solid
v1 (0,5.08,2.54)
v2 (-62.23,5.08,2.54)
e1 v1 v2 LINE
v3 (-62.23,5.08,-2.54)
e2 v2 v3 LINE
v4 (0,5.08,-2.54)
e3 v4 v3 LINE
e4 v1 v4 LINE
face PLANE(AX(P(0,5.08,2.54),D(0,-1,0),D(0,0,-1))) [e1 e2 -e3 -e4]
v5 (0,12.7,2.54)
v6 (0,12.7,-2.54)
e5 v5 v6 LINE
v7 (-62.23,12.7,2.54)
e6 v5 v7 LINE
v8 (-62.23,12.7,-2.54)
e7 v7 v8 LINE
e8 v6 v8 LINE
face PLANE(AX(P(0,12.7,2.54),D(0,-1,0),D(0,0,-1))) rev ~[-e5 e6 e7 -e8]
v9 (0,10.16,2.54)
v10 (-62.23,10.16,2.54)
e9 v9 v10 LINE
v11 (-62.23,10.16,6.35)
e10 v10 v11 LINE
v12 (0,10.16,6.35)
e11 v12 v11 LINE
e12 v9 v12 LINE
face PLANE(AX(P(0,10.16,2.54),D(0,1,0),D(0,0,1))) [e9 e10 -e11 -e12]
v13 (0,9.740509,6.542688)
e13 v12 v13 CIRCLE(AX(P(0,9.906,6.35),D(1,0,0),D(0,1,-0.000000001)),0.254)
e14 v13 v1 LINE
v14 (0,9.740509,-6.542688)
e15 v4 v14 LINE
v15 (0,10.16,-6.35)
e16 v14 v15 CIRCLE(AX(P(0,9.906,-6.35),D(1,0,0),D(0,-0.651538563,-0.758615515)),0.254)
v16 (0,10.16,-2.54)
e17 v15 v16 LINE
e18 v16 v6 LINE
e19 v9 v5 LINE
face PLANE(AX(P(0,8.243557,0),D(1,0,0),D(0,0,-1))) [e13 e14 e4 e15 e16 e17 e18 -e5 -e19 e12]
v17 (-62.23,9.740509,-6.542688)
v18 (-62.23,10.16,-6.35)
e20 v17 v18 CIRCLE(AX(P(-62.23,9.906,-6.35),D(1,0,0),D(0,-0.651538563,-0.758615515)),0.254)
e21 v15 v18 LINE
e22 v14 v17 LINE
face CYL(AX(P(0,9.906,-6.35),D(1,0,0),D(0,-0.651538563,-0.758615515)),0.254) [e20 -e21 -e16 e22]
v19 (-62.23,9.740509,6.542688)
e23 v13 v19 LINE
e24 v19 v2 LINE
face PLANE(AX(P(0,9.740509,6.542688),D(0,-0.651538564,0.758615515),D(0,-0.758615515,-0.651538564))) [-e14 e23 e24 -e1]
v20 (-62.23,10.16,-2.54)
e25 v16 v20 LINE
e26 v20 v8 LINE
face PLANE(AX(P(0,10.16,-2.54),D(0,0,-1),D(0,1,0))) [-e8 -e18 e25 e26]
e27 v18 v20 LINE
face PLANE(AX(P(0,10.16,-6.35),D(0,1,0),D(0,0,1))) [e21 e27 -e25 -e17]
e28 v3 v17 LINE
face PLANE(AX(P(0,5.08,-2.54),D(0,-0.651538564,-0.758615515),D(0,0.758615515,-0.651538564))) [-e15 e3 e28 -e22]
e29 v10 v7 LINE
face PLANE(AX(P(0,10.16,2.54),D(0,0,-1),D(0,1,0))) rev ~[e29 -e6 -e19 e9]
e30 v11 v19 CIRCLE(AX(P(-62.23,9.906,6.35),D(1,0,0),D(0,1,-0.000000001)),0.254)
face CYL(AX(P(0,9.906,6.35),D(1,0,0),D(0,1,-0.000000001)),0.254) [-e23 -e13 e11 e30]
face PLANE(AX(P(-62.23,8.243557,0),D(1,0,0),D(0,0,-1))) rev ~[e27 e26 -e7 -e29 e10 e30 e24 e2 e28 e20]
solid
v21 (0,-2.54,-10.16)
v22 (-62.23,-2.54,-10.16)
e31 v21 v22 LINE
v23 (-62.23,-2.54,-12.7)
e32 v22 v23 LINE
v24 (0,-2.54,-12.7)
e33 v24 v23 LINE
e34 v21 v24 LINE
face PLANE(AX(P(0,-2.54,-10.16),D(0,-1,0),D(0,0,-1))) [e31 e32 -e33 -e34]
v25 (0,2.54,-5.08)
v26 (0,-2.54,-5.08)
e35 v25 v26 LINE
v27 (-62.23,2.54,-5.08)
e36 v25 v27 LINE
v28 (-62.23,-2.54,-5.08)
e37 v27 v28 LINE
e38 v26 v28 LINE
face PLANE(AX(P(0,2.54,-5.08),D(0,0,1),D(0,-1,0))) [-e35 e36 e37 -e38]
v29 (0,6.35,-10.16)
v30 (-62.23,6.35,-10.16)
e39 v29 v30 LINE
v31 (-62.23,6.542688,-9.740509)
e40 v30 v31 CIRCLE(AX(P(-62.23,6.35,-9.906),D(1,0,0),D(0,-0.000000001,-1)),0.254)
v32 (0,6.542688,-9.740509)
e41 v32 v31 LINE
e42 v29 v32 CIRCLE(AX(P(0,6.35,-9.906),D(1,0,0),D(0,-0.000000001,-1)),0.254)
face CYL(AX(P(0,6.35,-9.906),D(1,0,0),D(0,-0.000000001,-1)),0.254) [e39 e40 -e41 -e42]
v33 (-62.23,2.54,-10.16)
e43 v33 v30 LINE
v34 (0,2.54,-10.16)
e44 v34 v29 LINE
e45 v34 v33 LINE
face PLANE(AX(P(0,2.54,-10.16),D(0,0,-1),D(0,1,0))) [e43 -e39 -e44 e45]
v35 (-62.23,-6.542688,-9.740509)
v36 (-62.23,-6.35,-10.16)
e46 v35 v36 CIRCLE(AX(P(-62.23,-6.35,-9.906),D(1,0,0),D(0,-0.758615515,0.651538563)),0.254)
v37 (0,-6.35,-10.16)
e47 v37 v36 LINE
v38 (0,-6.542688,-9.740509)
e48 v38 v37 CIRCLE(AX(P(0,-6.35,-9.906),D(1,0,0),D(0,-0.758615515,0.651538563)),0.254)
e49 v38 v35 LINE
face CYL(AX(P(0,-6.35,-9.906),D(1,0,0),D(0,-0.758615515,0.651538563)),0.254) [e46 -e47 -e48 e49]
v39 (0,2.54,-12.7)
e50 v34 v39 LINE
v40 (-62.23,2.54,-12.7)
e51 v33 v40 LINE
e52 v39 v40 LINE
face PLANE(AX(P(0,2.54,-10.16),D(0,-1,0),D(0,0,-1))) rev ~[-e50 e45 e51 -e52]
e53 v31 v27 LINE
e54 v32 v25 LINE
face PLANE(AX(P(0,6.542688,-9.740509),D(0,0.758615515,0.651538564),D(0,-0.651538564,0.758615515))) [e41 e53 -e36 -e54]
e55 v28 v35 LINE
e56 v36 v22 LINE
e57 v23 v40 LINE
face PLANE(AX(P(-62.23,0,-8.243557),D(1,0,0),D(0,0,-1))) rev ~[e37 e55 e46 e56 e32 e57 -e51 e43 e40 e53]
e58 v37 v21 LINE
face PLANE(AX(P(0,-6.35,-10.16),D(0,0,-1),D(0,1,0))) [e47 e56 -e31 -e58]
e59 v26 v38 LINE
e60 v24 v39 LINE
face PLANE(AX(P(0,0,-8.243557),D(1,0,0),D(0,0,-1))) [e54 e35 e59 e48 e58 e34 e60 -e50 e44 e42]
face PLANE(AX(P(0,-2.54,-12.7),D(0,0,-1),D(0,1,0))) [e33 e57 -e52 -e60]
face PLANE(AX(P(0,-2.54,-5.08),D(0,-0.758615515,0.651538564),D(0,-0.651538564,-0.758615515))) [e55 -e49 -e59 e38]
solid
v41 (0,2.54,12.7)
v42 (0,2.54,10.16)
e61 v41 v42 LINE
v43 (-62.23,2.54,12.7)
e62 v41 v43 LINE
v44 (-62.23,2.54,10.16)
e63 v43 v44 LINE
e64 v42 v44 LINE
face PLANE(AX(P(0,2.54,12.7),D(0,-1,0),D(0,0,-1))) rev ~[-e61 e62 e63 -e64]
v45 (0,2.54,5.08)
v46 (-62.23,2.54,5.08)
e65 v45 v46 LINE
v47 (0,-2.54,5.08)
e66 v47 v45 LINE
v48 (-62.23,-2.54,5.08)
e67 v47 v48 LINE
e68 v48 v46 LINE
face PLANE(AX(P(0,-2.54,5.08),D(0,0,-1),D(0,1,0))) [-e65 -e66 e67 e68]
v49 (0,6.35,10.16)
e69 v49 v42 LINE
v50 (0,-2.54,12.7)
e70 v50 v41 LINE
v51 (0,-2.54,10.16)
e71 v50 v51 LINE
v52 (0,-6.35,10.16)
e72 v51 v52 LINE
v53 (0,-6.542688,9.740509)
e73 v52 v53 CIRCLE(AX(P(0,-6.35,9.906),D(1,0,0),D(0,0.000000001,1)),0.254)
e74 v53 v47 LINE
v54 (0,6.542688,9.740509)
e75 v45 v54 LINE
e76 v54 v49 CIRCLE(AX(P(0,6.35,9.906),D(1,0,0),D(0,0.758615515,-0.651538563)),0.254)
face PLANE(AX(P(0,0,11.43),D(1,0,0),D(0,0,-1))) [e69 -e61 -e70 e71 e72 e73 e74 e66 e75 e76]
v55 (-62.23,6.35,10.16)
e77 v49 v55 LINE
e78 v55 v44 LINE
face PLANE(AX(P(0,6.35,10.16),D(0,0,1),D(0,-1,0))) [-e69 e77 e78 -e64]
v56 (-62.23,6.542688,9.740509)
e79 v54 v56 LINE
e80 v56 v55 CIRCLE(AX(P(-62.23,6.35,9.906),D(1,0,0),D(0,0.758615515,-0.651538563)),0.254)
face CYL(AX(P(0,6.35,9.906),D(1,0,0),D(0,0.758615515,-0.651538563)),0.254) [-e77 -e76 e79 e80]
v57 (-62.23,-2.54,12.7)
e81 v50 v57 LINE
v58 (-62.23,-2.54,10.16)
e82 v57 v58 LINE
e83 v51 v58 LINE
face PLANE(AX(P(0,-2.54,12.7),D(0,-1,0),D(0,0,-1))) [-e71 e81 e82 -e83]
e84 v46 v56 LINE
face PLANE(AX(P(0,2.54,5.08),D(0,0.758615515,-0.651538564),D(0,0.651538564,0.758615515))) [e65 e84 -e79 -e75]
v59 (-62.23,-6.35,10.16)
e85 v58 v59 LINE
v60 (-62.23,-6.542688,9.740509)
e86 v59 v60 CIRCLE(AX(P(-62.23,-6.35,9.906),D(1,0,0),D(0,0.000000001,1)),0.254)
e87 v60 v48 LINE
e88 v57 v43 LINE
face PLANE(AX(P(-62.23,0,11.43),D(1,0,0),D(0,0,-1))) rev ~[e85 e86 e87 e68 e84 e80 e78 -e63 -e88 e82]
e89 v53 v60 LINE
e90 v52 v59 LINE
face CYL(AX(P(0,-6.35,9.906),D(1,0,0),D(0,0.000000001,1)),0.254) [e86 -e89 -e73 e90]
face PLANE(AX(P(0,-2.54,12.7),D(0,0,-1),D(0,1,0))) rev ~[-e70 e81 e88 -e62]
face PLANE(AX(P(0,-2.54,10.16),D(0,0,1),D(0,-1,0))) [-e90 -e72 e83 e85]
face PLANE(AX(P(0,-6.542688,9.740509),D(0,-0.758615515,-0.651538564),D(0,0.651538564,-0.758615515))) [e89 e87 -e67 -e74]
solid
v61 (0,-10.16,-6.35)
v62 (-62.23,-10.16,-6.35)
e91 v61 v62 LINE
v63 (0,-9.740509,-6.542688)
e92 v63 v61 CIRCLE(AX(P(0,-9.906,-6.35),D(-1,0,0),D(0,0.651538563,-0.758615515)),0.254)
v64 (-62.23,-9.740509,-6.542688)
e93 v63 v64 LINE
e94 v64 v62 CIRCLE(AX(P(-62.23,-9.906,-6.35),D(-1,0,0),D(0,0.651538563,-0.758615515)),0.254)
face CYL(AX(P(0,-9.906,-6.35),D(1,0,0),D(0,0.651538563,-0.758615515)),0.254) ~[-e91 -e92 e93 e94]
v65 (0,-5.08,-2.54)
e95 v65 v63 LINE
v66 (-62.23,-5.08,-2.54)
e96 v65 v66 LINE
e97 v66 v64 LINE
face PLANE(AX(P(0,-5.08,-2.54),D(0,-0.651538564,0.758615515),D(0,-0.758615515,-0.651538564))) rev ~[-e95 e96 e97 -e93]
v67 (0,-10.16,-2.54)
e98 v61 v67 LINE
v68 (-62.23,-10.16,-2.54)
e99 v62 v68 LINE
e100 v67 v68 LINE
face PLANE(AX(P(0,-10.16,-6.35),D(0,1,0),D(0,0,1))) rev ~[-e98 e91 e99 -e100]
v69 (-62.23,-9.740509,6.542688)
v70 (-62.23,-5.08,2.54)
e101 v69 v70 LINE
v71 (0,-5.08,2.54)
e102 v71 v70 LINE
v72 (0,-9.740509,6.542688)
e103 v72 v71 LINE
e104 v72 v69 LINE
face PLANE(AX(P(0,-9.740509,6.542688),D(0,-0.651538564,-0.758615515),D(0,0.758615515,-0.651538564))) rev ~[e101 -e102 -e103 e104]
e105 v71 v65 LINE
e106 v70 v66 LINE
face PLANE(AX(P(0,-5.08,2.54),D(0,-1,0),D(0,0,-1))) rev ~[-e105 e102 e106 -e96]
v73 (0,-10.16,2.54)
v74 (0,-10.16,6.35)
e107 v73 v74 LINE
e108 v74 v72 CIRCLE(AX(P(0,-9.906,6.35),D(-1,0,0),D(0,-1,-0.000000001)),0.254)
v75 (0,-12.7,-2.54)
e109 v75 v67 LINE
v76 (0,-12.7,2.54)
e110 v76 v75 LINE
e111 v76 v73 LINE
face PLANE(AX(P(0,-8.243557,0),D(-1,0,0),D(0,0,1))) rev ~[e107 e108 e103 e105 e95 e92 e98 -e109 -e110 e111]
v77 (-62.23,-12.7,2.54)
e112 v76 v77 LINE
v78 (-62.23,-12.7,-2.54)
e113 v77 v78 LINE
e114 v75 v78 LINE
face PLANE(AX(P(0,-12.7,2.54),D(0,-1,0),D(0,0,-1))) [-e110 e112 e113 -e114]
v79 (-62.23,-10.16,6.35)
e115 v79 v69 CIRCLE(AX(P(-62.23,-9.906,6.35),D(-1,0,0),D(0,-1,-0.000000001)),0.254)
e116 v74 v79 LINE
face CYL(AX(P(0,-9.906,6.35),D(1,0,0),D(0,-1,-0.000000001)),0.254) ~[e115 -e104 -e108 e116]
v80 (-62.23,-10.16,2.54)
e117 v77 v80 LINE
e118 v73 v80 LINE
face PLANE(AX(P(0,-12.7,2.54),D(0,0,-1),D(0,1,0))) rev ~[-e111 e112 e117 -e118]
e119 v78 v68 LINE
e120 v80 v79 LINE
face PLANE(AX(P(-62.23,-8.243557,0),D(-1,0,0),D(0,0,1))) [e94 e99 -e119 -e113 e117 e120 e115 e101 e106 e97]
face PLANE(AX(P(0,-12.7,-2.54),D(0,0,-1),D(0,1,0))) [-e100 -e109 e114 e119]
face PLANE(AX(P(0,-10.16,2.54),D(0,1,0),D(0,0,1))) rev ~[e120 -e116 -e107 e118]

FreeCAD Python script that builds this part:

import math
import FreeCAD as App
import Part
import Sketcher
Q = App.Units.Quantity

doc = App.newDocument("Part")
body = doc.addObject("PartDesign::Body", "Body")
body.AllowCompound = True

# Sketch on YZ plane
sketch1 = body.newObject("Sketcher::SketchObject", "Sketch")
sketch1.AttachmentSupport = (doc.getObject("YZ_Plane"), [""])
sketch1.MapMode = "FlatFace"
sketch1.addGeometry([
    Part.LineSegment(App.Vector(2.54, 12.7, 0), App.Vector(-2.54, 12.7, 0)),  # 0
    Part.LineSegment(App.Vector(-2.54, 12.7, 0), App.Vector(-2.54, 10.16, 0)),  # 1
    Part.LineSegment(App.Vector(-2.54, 10.16, 0), App.Vector(-6.35, 10.16, 0)),  # 2
    Part.ArcOfCircle(Part.Circle(App.Vector(-6.35, 9.91, 0), App.Vector(0, 0, 1), 0.25), math.radians(90), math.radians(221)),  # 3
    Part.LineSegment(App.Vector(-6.54, 9.74, 0), App.Vector(-2.54, 5.08, 0)),  # 4
    Part.LineSegment(App.Vector(-2.54, 5.08, 0), App.Vector(2.54, 5.08, 0)),  # 5
    Part.LineSegment(App.Vector(2.54, 5.08, 0), App.Vector(6.54, 9.74, 0)),  # 6
    Part.ArcOfCircle(Part.Circle(App.Vector(6.35, 9.91, 0), App.Vector(0, 0, 1), 0.25), math.radians(-41), math.radians(90)),  # 7
    Part.LineSegment(App.Vector(6.35, 10.16, 0), App.Vector(2.54, 10.16, 0)),  # 8
    Part.LineSegment(App.Vector(2.54, 10.16, 0), App.Vector(2.54, 12.7, 0)),  # 9
    Part.LineSegment(App.Vector(10.16, -6.35, 0), App.Vector(10.16, -2.54, 0)),  # 10
    Part.LineSegment(App.Vector(10.16, -2.54, 0), App.Vector(12.7, -2.54, 0)),  # 11
    Part.LineSegment(App.Vector(12.7, -2.54, 0), App.Vector(12.7, 2.54, 0)),  # 12
    Part.LineSegment(App.Vector(12.7, 2.54, 0), App.Vector(10.16, 2.54, 0)),  # 13
    Part.LineSegment(App.Vector(10.16, 2.54, 0), App.Vector(10.16, 6.35, 0)),  # 14
    Part.ArcOfCircle(Part.Circle(App.Vector(9.91, 6.35, 0), App.Vector(0, 0, 1), 0.25), math.radians(0), math.radians(131)),  # 15
    Part.LineSegment(App.Vector(9.74, 6.54, 0), App.Vector(5.08, 2.54, 0)),  # 16
    Part.LineSegment(App.Vector(5.08, 2.54, 0), App.Vector(5.08, -2.54, 0)),  # 17
    Part.LineSegment(App.Vector(5.08, -2.54, 0), App.Vector(9.74, -6.54, 0)),  # 18
    Part.ArcOfCircle(Part.Circle(App.Vector(9.91, -6.35, 0), App.Vector(0, 0, 1), 0.25), math.radians(-131), math.radians(0)),  # 19
    Part.ArcOfCircle(Part.Circle(App.Vector(-9.91, -6.35, 0), App.Vector(0, 0, 1), 0.25), math.radians(180), math.radians(311)),  # 20
    Part.LineSegment(App.Vector(-9.74, -6.54, 0), App.Vector(-5.08, -2.54, 0)),  # 21
    Part.LineSegment(App.Vector(-5.08, -2.54, 0), App.Vector(-5.08, 2.54, 0)),  # 22
    Part.LineSegment(App.Vector(-5.08, 2.54, 0), App.Vector(-9.74, 6.54, 0)),  # 23
    Part.ArcOfCircle(Part.Circle(App.Vector(-9.91, 6.35, 0), App.Vector(0, 0, 1), 0.25), math.radians(49), math.radians(180)),  # 24
    Part.LineSegment(App.Vector(-10.16, 6.35, 0), App.Vector(-10.16, 2.54, 0)),  # 25
    Part.LineSegment(App.Vector(-10.16, 2.54, 0), App.Vector(-12.7, 2.54, 0)),  # 26
    Part.LineSegment(App.Vector(-12.7, 2.54, 0), App.Vector(-12.7, -2.54, 0)),  # 27
    Part.LineSegment(App.Vector(-12.7, -2.54, 0), App.Vector(-10.16, -2.54, 0)),  # 28
    Part.LineSegment(App.Vector(-10.16, -2.54, 0), App.Vector(-10.16, -6.35, 0)),  # 29
    Part.LineSegment(App.Vector(2.54, -5.08, 0), App.Vector(-2.54, -5.08, 0)),  # 30
    Part.LineSegment(App.Vector(-2.54, -5.08, 0), App.Vector(-6.54, -9.74, 0)),  # 31
    Part.ArcOfCircle(Part.Circle(App.Vector(-6.35, -9.91, 0), App.Vector(0, 0, 1), 0.25), math.radians(139), math.radians(270)),  # 32
    Part.LineSegment(App.Vector(-6.35, -10.16, 0), App.Vector(-2.54, -10.16, 0)),  # 33
    Part.LineSegment(App.Vector(-2.54, -10.16, 0), App.Vector(-2.54, -12.7, 0)),  # 34
    Part.LineSegment(App.Vector(-2.54, -12.7, 0), App.Vector(2.54, -12.7, 0)),  # 35
    Part.LineSegment(App.Vector(2.54, -12.7, 0), App.Vector(2.54, -10.16, 0)),  # 36
    Part.LineSegment(App.Vector(2.54, -10.16, 0), App.Vector(6.35, -10.16, 0)),  # 37
    Part.ArcOfCircle(Part.Circle(App.Vector(6.35, -9.91, 0), App.Vector(0, 0, 1), 0.25), math.radians(-90), math.radians(41)),  # 38
    Part.LineSegment(App.Vector(6.54, -9.74, 0), App.Vector(2.54, -5.08, 0)),  # 39
], False)
sketch1.addConstraint([
    Sketcher.Constraint("Coincident", 0, 2, 1, 1),
    Sketcher.Constraint("Coincident", 1, 2, 2, 1),
    Sketcher.Constraint("Tangent", 2, 2, 3, 1),
    Sketcher.Constraint("Tangent", 3, 2, 4, 1),
    Sketcher.Constraint("Coincident", 4, 2, 5, 1),
    Sketcher.Constraint("Coincident", 5, 2, 6, 1),
    Sketcher.Constraint("Tangent", 6, 2, 7, 1),
    Sketcher.Constraint("Tangent", 7, 2, 8, 1),
    Sketcher.Constraint("Coincident", 8, 2, 9, 1),
    Sketcher.Constraint("Coincident", 9, 2, 0, 1),
    Sketcher.Constraint("Coincident", 10, 2, 11, 1),
    Sketcher.Constraint("Coincident", 11, 2, 12, 1),
    Sketcher.Constraint("Coincident", 12, 2, 13, 1),
    Sketcher.Constraint("Coincident", 13, 2, 14, 1),
    Sketcher.Constraint("Tangent", 14, 2, 15, 1),
    Sketcher.Constraint("Tangent", 15, 2, 16, 1),
    Sketcher.Constraint("Coincident", 16, 2, 17, 1),
    Sketcher.Constraint("Coincident", 17, 2, 18, 1),
    Sketcher.Constraint("Tangent", 18, 2, 19, 1),
    Sketcher.Constraint("Tangent", 19, 2, 10, 1),
    Sketcher.Constraint("Tangent", 20, 2, 21, 1),
    Sketcher.Constraint("Coincident", 21, 2, 22, 1),
    Sketcher.Constraint("Coincident", 22, 2, 23, 1),
    Sketcher.Constraint("Tangent", 23, 2, 24, 1),
    Sketcher.Constraint("Tangent", 24, 2, 25, 1),
    Sketcher.Constraint("Coincident", 25, 2, 26, 1),
    Sketcher.Constraint("Coincident", 26, 2, 27, 1),
    Sketcher.Constraint("Coincident", 27, 2, 28, 1),
    Sketcher.Constraint("Coincident", 28, 2, 29, 1),
    Sketcher.Constraint("Tangent", 29, 2, 20, 1),
    Sketcher.Constraint("Coincident", 30, 2, 31, 1),
    Sketcher.Constraint("Tangent", 31, 2, 32, 1),
    Sketcher.Constraint("Tangent", 32, 2, 33, 1),
    Sketcher.Constraint("Coincident", 33, 2, 34, 1),
    Sketcher.Constraint("Coincident", 34, 2, 35, 1),
    Sketcher.Constraint("Coincident", 35, 2, 36, 1),
    Sketcher.Constraint("Coincident", 36, 2, 37, 1),
    Sketcher.Constraint("Tangent", 37, 2, 38, 1),
    Sketcher.Constraint("Tangent", 38, 2, 39, 1),
    Sketcher.Constraint("Coincident", 39, 2, 30, 1),
    Sketcher.Constraint("Horizontal", 0),
    Sketcher.Constraint("Vertical", 1),
    Sketcher.Constraint("Horizontal", 2),
    Sketcher.Constraint("Horizontal", 5),
    Sketcher.Constraint("Horizontal", 8),
    Sketcher.Constraint("Vertical", 9),
    Sketcher.Constraint("Vertical", 10),
    Sketcher.Constraint("Horizontal", 11),
    Sketcher.Constraint("Vertical", 12),
    Sketcher.Constraint("Horizontal", 13),
    Sketcher.Constraint("Vertical", 14),
    Sketcher.Constraint("Vertical", 17),
    Sketcher.Constraint("Vertical", 22),
    Sketcher.Constraint("Vertical", 25),
    Sketcher.Constraint("Horizontal", 26),
    Sketcher.Constraint("Vertical", 27),
    Sketcher.Constraint("Horizontal", 28),
    Sketcher.Constraint("Vertical", 29),
    Sketcher.Constraint("Horizontal", 30),
    Sketcher.Constraint("Horizontal", 33),
    Sketcher.Constraint("Vertical", 34),
    Sketcher.Constraint("Horizontal", 35),
    Sketcher.Constraint("Vertical", 36),
    Sketcher.Constraint("Horizontal", 37),
    Sketcher.Constraint("Equal", 3, 7),
    Sketcher.Constraint("Equal", 7, 15),
    Sketcher.Constraint("Equal", 15, 19),
    Sketcher.Constraint("Equal", 19, 20),
    Sketcher.Constraint("Equal", 20, 24),
    Sketcher.Constraint("Equal", 24, 32),
    Sketcher.Constraint("Equal", 32, 38),
    Sketcher.Constraint("Symmetric", 15, 3, 20, 3, -1, 1),
    Sketcher.Constraint("Symmetric", 19, 3, 24, 3, -1, 1),
    Sketcher.Constraint("Symmetric", 7, 3, 32, 3, -1, 1),
    Sketcher.Constraint("Symmetric", 3, 3, 38, 3, -1, 1),
    Sketcher.Constraint("Symmetric", 16, 2, 21, 2, -1, 1),
    Sketcher.Constraint("Symmetric", 11, 2, 26, 2, -1, 1),
    Sketcher.Constraint("Symmetric", 5, 2, 30, 2, -1, 1),
    Sketcher.Constraint("Symmetric", 9, 2, 34, 2, -1, 1),
    Sketcher.Constraint("Symmetric", 3, 3, 7, 3, -2),
    Sketcher.Constraint("Symmetric", 19, 3, 20, 3, -2),
    Sketcher.Constraint("Perpendicular", 4, 16),
    Sketcher.Constraint("Perpendicular", 6, 18),
    Sketcher.Constraint("Parallel", 18, 23),
    Sketcher.Constraint("Perpendicular", 21, 39),
    Sketcher.Constraint("Horizontal", 3, 2, 6, 2),
    Sketcher.Constraint("Horizontal", 13, 2, 16, 2),
    Sketcher.Constraint("Horizontal", 11, 2, 17, 2),
    Sketcher.Constraint("Horizontal", 21, 2, 27, 2),
    Sketcher.Constraint("Vertical", 1, 2, 4, 2),
    Sketcher.Constraint("Vertical", 5, 2, 8, 2),
    Sketcher.Constraint("Vertical", 9, 2, 35, 2),
    Sketcher.Constraint("Equal", 28, 1),
    Sketcher.Constraint("Equal", 37, 10),
    Sketcher.Constraint("Equal", 35, 12),
    Sketcher.Constraint("Radius", 3, Q("0.01 in")),
    Sketcher.Constraint("DistanceX", 0, 2, 0, 1, Q("0.2 in")),
    Sketcher.Constraint("DistanceX", 11, 1, 11, 2, Q("0.1 in")),
    Sketcher.Constraint("DistanceX", 2, 2, 2, 1, Q("0.15 in")),
    Sketcher.Constraint("DistanceY", -1, 1, 0, 2, Q("0.5 in")),
    Sketcher.Constraint("DistanceY", -1, 1, 4, 2, Q("0.2 in")),
    Sketcher.Constraint("DistanceX", -1, 1, 10, 2, Q("0.4 in")),
])
pad1 = body.newObject("PartDesign::Pad", "Pad")
pad1.Profile = sketch1
pad1.Length = Q("2.45 in")
pad1.Reversed = True

doc.recompute()
